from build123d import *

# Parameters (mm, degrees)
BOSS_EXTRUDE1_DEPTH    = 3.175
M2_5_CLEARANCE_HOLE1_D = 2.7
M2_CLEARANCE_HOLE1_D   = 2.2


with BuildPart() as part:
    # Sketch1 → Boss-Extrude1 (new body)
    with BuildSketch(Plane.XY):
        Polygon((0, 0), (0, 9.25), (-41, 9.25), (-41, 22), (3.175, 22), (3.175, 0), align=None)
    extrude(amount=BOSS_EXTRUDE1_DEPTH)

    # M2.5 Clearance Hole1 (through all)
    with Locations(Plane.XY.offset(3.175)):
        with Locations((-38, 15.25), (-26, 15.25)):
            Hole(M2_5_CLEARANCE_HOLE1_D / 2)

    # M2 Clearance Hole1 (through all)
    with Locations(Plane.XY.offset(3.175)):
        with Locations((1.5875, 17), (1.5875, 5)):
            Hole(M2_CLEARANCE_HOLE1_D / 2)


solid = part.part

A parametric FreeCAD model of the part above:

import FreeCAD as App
import Part
import Sketcher
Q = App.Units.Quantity


def add_polygon(sketch, points):
    """Adds a closed chain of lines whose ends are joined by coincident constraints."""
    first, n = sketch.GeometryCount, len(points)
    for a, b in zip(points, points[1:] + points[:1]):
        sketch.addGeometry(Part.LineSegment(App.Vector(*a, 0), App.Vector(*b, 0)), False)
    for i in range(n):
        sketch.addConstraint(Sketcher.Constraint("Coincident", first + i, 2, first + (i + 1) % n, 1))

doc = App.newDocument("Part")
body = doc.addObject("PartDesign::Body", "Body")

# Sketch on XY plane
sketch1 = body.newObject("Sketcher::SketchObject", "Sketch")
sketch1.AttachmentSupport = (doc.getObject("XY_Plane"), [""])
sketch1.MapMode = "FlatFace"
add_polygon(sketch1, [(0, 9.2), (0, 0), (3.2, 0), (3.2, 22), (-41, 22), (-41, 9.2)])  # lines 0-5
sketch1.addConstraint([
    Sketcher.Constraint("Vertical", 0),
    Sketcher.Constraint("Horizontal", 1),
    Sketcher.Constraint("Vertical", 2),
    Sketcher.Constraint("Horizontal", 3),
    Sketcher.Constraint("Vertical", 4),
    Sketcher.Constraint("Horizontal", 5),
    Sketcher.Constraint("Coincident", 0, 2, -1, 1),
    Sketcher.Constraint("DistanceX", 5, 1, 5, 2, Q("41 mm")),
    Sketcher.Constraint("DistanceY", 2, 1, 2, 2, Q("22 mm")),
    Sketcher.Constraint("DistanceY", 0, 2, 0, 1, Q("9.25 mm")),
    Sketcher.Constraint("DistanceX", 1, 1, 1, 2, Q("3.175 mm")),
])
pad1 = body.newObject("PartDesign::Pad", "Pad")
pad1.Profile = sketch1
pad1.Length = 3.175

# Sketch on XY plane
sketch2 = body.newObject("Sketcher::SketchObject", "Sketch001")
sketch2.AttachmentSupport = (doc.getObject("XY_Plane"), [""])
sketch2.MapMode = "FlatFace"
sketch2.AttachmentOffset = App.Placement(App.Vector(0, 0, 3.175), App.Rotation())
sketch2.addGeometry([
    Part.Circle(App.Vector(-38, 15.2, 0), App.Vector(0, 0, 1), 1.4),
    Part.Circle(App.Vector(-26, 15.2, 0), App.Vector(0, 0, 1), 1.4),
], False)
sketch2.addConstraint([
    Sketcher.Constraint("Equal", 0, 1),
    Sketcher.Constraint("Horizontal", 0, 3, 1, 3),
    Sketcher.Constraint("Diameter", 0, Q("2.7 mm")),
    Sketcher.Constraint("DistanceX", 0, 3, -1, 1, Q("38 mm")),
    Sketcher.Constraint("DistanceX", 1, 3, -1, 1, Q("26 mm")),
    Sketcher.Constraint("DistanceY", -1, 1, 0, 3, Q("15.25 mm")),
])
doc.recompute()
hole = body.newObject("PartDesign::Hole", "Hole")
hole.Profile = sketch2
hole.ThreadType = "None"
hole.Diameter = 2.7
hole.DepthType = "ThroughAll"

# Sketch on XY plane
sketch3 = body.newObject("Sketcher::SketchObject", "Sketch002")
sketch3.AttachmentSupport = (doc.getObject("XY_Plane"), [""])
sketch3.MapMode = "FlatFace"
sketch3.AttachmentOffset = App.Placement(App.Vector(0, 0, 3.175), App.Rotation())
sketch3.addGeometry([
    Part.Circle(App.Vector(1.6, 17, 0), App.Vector(0, 0, 1), 1.1),
    Part.Circle(App.Vector(1.6, 5, 0), App.Vector(0, 0, 1), 1.1),
], False)
sketch3.addConstraint([
    Sketcher.Constraint("Equal", 0, 1),
    Sketcher.Constraint("Vertical", 0, 3, 1, 3),
    Sketcher.Constraint("Diameter", 0, Q("2.2 mm")),
    Sketcher.Constraint("DistanceY", -1, 1, 0, 3, Q("17 mm")),
    Sketcher.Constraint("DistanceY", -1, 1, 1, 3, Q("5 mm")),
    Sketcher.Constraint("DistanceX", -1, 1, 0, 3, Q("1.5875 mm")),
])
doc.recompute()
hole2 = body.newObject("PartDesign::Hole", "Hole001")
hole2.Profile = sketch3
hole2.ThreadType = "None"
hole2.Diameter = 2.2
hole2.DepthType = "ThroughAll"

doc.recompute()
